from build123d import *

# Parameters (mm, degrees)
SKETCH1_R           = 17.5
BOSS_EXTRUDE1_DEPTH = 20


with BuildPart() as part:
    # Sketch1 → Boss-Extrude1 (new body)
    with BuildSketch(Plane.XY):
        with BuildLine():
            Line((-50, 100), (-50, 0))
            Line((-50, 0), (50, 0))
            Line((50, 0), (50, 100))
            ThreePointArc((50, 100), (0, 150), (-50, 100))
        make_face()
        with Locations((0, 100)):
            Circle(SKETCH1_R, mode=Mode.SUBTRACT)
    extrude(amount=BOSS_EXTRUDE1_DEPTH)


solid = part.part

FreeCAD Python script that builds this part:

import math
import FreeCAD as App
import Part
import Sketcher

doc = App.newDocument("Part")
body = doc.addObject("PartDesign::Body", "Body")

# Sketch on XY plane
sketch1 = body.newObject("Sketcher::SketchObject", "Sketch")
sketch1.AttachmentSupport = (doc.getObject("XY_Plane"), [""])
sketch1.MapMode = "FlatFace"
sketch1.addGeometry([
    Part.LineSegment(App.Vector(-50, 100, 0), App.Vector(-50, 0, 0)),  # 0
    Part.LineSegment(App.Vector(-50, 0, 0), App.Vector(50, 0, 0)),  # 1
    Part.LineSegment(App.Vector(50, 0, 0), App.Vector(50, 100, 0)),  # 2
    Part.ArcOfCircle(Part.Circle(App.Vector(0, 100, 0), App.Vector(0, 0, 1), 50), math.radians(0), math.radians(180)),  # 3
    Part.Circle(App.Vector(0, 100, 0), App.Vector(0, 0, 1), 18),  # 4
], False)
sketch1.addConstraint([
    Sketcher.Constraint("Coincident", 0, 2, 1, 1),
    Sketcher.Constraint("Coincident", 1, 2, 2, 1),
    Sketcher.Constraint("Tangent", 2, 2, 3, 1),
    Sketcher.Constraint("Tangent", 3, 2, 0, 1),
    Sketcher.Constraint("Vertical", 0),
    Sketcher.Constraint("Horizontal", 1),
    Sketcher.Constraint("Vertical", 2),
    Sketcher.Constraint("Coincident", 4, 3, 3, 3),
    Sketcher.Constraint("Symmetric", 0, 2, 1, 2, -1, 1),
    Sketcher.Constraint("Equal", 1, 0),
    Sketcher.Constraint("Diameter", 4, 35.0),
    Sketcher.Constraint("Radius", 3, 50.0),
])
pad1 = body.newObject("PartDesign::Pad", "Pad")
pad1.Profile = sketch1
pad1.Length = 20

doc.recompute()
